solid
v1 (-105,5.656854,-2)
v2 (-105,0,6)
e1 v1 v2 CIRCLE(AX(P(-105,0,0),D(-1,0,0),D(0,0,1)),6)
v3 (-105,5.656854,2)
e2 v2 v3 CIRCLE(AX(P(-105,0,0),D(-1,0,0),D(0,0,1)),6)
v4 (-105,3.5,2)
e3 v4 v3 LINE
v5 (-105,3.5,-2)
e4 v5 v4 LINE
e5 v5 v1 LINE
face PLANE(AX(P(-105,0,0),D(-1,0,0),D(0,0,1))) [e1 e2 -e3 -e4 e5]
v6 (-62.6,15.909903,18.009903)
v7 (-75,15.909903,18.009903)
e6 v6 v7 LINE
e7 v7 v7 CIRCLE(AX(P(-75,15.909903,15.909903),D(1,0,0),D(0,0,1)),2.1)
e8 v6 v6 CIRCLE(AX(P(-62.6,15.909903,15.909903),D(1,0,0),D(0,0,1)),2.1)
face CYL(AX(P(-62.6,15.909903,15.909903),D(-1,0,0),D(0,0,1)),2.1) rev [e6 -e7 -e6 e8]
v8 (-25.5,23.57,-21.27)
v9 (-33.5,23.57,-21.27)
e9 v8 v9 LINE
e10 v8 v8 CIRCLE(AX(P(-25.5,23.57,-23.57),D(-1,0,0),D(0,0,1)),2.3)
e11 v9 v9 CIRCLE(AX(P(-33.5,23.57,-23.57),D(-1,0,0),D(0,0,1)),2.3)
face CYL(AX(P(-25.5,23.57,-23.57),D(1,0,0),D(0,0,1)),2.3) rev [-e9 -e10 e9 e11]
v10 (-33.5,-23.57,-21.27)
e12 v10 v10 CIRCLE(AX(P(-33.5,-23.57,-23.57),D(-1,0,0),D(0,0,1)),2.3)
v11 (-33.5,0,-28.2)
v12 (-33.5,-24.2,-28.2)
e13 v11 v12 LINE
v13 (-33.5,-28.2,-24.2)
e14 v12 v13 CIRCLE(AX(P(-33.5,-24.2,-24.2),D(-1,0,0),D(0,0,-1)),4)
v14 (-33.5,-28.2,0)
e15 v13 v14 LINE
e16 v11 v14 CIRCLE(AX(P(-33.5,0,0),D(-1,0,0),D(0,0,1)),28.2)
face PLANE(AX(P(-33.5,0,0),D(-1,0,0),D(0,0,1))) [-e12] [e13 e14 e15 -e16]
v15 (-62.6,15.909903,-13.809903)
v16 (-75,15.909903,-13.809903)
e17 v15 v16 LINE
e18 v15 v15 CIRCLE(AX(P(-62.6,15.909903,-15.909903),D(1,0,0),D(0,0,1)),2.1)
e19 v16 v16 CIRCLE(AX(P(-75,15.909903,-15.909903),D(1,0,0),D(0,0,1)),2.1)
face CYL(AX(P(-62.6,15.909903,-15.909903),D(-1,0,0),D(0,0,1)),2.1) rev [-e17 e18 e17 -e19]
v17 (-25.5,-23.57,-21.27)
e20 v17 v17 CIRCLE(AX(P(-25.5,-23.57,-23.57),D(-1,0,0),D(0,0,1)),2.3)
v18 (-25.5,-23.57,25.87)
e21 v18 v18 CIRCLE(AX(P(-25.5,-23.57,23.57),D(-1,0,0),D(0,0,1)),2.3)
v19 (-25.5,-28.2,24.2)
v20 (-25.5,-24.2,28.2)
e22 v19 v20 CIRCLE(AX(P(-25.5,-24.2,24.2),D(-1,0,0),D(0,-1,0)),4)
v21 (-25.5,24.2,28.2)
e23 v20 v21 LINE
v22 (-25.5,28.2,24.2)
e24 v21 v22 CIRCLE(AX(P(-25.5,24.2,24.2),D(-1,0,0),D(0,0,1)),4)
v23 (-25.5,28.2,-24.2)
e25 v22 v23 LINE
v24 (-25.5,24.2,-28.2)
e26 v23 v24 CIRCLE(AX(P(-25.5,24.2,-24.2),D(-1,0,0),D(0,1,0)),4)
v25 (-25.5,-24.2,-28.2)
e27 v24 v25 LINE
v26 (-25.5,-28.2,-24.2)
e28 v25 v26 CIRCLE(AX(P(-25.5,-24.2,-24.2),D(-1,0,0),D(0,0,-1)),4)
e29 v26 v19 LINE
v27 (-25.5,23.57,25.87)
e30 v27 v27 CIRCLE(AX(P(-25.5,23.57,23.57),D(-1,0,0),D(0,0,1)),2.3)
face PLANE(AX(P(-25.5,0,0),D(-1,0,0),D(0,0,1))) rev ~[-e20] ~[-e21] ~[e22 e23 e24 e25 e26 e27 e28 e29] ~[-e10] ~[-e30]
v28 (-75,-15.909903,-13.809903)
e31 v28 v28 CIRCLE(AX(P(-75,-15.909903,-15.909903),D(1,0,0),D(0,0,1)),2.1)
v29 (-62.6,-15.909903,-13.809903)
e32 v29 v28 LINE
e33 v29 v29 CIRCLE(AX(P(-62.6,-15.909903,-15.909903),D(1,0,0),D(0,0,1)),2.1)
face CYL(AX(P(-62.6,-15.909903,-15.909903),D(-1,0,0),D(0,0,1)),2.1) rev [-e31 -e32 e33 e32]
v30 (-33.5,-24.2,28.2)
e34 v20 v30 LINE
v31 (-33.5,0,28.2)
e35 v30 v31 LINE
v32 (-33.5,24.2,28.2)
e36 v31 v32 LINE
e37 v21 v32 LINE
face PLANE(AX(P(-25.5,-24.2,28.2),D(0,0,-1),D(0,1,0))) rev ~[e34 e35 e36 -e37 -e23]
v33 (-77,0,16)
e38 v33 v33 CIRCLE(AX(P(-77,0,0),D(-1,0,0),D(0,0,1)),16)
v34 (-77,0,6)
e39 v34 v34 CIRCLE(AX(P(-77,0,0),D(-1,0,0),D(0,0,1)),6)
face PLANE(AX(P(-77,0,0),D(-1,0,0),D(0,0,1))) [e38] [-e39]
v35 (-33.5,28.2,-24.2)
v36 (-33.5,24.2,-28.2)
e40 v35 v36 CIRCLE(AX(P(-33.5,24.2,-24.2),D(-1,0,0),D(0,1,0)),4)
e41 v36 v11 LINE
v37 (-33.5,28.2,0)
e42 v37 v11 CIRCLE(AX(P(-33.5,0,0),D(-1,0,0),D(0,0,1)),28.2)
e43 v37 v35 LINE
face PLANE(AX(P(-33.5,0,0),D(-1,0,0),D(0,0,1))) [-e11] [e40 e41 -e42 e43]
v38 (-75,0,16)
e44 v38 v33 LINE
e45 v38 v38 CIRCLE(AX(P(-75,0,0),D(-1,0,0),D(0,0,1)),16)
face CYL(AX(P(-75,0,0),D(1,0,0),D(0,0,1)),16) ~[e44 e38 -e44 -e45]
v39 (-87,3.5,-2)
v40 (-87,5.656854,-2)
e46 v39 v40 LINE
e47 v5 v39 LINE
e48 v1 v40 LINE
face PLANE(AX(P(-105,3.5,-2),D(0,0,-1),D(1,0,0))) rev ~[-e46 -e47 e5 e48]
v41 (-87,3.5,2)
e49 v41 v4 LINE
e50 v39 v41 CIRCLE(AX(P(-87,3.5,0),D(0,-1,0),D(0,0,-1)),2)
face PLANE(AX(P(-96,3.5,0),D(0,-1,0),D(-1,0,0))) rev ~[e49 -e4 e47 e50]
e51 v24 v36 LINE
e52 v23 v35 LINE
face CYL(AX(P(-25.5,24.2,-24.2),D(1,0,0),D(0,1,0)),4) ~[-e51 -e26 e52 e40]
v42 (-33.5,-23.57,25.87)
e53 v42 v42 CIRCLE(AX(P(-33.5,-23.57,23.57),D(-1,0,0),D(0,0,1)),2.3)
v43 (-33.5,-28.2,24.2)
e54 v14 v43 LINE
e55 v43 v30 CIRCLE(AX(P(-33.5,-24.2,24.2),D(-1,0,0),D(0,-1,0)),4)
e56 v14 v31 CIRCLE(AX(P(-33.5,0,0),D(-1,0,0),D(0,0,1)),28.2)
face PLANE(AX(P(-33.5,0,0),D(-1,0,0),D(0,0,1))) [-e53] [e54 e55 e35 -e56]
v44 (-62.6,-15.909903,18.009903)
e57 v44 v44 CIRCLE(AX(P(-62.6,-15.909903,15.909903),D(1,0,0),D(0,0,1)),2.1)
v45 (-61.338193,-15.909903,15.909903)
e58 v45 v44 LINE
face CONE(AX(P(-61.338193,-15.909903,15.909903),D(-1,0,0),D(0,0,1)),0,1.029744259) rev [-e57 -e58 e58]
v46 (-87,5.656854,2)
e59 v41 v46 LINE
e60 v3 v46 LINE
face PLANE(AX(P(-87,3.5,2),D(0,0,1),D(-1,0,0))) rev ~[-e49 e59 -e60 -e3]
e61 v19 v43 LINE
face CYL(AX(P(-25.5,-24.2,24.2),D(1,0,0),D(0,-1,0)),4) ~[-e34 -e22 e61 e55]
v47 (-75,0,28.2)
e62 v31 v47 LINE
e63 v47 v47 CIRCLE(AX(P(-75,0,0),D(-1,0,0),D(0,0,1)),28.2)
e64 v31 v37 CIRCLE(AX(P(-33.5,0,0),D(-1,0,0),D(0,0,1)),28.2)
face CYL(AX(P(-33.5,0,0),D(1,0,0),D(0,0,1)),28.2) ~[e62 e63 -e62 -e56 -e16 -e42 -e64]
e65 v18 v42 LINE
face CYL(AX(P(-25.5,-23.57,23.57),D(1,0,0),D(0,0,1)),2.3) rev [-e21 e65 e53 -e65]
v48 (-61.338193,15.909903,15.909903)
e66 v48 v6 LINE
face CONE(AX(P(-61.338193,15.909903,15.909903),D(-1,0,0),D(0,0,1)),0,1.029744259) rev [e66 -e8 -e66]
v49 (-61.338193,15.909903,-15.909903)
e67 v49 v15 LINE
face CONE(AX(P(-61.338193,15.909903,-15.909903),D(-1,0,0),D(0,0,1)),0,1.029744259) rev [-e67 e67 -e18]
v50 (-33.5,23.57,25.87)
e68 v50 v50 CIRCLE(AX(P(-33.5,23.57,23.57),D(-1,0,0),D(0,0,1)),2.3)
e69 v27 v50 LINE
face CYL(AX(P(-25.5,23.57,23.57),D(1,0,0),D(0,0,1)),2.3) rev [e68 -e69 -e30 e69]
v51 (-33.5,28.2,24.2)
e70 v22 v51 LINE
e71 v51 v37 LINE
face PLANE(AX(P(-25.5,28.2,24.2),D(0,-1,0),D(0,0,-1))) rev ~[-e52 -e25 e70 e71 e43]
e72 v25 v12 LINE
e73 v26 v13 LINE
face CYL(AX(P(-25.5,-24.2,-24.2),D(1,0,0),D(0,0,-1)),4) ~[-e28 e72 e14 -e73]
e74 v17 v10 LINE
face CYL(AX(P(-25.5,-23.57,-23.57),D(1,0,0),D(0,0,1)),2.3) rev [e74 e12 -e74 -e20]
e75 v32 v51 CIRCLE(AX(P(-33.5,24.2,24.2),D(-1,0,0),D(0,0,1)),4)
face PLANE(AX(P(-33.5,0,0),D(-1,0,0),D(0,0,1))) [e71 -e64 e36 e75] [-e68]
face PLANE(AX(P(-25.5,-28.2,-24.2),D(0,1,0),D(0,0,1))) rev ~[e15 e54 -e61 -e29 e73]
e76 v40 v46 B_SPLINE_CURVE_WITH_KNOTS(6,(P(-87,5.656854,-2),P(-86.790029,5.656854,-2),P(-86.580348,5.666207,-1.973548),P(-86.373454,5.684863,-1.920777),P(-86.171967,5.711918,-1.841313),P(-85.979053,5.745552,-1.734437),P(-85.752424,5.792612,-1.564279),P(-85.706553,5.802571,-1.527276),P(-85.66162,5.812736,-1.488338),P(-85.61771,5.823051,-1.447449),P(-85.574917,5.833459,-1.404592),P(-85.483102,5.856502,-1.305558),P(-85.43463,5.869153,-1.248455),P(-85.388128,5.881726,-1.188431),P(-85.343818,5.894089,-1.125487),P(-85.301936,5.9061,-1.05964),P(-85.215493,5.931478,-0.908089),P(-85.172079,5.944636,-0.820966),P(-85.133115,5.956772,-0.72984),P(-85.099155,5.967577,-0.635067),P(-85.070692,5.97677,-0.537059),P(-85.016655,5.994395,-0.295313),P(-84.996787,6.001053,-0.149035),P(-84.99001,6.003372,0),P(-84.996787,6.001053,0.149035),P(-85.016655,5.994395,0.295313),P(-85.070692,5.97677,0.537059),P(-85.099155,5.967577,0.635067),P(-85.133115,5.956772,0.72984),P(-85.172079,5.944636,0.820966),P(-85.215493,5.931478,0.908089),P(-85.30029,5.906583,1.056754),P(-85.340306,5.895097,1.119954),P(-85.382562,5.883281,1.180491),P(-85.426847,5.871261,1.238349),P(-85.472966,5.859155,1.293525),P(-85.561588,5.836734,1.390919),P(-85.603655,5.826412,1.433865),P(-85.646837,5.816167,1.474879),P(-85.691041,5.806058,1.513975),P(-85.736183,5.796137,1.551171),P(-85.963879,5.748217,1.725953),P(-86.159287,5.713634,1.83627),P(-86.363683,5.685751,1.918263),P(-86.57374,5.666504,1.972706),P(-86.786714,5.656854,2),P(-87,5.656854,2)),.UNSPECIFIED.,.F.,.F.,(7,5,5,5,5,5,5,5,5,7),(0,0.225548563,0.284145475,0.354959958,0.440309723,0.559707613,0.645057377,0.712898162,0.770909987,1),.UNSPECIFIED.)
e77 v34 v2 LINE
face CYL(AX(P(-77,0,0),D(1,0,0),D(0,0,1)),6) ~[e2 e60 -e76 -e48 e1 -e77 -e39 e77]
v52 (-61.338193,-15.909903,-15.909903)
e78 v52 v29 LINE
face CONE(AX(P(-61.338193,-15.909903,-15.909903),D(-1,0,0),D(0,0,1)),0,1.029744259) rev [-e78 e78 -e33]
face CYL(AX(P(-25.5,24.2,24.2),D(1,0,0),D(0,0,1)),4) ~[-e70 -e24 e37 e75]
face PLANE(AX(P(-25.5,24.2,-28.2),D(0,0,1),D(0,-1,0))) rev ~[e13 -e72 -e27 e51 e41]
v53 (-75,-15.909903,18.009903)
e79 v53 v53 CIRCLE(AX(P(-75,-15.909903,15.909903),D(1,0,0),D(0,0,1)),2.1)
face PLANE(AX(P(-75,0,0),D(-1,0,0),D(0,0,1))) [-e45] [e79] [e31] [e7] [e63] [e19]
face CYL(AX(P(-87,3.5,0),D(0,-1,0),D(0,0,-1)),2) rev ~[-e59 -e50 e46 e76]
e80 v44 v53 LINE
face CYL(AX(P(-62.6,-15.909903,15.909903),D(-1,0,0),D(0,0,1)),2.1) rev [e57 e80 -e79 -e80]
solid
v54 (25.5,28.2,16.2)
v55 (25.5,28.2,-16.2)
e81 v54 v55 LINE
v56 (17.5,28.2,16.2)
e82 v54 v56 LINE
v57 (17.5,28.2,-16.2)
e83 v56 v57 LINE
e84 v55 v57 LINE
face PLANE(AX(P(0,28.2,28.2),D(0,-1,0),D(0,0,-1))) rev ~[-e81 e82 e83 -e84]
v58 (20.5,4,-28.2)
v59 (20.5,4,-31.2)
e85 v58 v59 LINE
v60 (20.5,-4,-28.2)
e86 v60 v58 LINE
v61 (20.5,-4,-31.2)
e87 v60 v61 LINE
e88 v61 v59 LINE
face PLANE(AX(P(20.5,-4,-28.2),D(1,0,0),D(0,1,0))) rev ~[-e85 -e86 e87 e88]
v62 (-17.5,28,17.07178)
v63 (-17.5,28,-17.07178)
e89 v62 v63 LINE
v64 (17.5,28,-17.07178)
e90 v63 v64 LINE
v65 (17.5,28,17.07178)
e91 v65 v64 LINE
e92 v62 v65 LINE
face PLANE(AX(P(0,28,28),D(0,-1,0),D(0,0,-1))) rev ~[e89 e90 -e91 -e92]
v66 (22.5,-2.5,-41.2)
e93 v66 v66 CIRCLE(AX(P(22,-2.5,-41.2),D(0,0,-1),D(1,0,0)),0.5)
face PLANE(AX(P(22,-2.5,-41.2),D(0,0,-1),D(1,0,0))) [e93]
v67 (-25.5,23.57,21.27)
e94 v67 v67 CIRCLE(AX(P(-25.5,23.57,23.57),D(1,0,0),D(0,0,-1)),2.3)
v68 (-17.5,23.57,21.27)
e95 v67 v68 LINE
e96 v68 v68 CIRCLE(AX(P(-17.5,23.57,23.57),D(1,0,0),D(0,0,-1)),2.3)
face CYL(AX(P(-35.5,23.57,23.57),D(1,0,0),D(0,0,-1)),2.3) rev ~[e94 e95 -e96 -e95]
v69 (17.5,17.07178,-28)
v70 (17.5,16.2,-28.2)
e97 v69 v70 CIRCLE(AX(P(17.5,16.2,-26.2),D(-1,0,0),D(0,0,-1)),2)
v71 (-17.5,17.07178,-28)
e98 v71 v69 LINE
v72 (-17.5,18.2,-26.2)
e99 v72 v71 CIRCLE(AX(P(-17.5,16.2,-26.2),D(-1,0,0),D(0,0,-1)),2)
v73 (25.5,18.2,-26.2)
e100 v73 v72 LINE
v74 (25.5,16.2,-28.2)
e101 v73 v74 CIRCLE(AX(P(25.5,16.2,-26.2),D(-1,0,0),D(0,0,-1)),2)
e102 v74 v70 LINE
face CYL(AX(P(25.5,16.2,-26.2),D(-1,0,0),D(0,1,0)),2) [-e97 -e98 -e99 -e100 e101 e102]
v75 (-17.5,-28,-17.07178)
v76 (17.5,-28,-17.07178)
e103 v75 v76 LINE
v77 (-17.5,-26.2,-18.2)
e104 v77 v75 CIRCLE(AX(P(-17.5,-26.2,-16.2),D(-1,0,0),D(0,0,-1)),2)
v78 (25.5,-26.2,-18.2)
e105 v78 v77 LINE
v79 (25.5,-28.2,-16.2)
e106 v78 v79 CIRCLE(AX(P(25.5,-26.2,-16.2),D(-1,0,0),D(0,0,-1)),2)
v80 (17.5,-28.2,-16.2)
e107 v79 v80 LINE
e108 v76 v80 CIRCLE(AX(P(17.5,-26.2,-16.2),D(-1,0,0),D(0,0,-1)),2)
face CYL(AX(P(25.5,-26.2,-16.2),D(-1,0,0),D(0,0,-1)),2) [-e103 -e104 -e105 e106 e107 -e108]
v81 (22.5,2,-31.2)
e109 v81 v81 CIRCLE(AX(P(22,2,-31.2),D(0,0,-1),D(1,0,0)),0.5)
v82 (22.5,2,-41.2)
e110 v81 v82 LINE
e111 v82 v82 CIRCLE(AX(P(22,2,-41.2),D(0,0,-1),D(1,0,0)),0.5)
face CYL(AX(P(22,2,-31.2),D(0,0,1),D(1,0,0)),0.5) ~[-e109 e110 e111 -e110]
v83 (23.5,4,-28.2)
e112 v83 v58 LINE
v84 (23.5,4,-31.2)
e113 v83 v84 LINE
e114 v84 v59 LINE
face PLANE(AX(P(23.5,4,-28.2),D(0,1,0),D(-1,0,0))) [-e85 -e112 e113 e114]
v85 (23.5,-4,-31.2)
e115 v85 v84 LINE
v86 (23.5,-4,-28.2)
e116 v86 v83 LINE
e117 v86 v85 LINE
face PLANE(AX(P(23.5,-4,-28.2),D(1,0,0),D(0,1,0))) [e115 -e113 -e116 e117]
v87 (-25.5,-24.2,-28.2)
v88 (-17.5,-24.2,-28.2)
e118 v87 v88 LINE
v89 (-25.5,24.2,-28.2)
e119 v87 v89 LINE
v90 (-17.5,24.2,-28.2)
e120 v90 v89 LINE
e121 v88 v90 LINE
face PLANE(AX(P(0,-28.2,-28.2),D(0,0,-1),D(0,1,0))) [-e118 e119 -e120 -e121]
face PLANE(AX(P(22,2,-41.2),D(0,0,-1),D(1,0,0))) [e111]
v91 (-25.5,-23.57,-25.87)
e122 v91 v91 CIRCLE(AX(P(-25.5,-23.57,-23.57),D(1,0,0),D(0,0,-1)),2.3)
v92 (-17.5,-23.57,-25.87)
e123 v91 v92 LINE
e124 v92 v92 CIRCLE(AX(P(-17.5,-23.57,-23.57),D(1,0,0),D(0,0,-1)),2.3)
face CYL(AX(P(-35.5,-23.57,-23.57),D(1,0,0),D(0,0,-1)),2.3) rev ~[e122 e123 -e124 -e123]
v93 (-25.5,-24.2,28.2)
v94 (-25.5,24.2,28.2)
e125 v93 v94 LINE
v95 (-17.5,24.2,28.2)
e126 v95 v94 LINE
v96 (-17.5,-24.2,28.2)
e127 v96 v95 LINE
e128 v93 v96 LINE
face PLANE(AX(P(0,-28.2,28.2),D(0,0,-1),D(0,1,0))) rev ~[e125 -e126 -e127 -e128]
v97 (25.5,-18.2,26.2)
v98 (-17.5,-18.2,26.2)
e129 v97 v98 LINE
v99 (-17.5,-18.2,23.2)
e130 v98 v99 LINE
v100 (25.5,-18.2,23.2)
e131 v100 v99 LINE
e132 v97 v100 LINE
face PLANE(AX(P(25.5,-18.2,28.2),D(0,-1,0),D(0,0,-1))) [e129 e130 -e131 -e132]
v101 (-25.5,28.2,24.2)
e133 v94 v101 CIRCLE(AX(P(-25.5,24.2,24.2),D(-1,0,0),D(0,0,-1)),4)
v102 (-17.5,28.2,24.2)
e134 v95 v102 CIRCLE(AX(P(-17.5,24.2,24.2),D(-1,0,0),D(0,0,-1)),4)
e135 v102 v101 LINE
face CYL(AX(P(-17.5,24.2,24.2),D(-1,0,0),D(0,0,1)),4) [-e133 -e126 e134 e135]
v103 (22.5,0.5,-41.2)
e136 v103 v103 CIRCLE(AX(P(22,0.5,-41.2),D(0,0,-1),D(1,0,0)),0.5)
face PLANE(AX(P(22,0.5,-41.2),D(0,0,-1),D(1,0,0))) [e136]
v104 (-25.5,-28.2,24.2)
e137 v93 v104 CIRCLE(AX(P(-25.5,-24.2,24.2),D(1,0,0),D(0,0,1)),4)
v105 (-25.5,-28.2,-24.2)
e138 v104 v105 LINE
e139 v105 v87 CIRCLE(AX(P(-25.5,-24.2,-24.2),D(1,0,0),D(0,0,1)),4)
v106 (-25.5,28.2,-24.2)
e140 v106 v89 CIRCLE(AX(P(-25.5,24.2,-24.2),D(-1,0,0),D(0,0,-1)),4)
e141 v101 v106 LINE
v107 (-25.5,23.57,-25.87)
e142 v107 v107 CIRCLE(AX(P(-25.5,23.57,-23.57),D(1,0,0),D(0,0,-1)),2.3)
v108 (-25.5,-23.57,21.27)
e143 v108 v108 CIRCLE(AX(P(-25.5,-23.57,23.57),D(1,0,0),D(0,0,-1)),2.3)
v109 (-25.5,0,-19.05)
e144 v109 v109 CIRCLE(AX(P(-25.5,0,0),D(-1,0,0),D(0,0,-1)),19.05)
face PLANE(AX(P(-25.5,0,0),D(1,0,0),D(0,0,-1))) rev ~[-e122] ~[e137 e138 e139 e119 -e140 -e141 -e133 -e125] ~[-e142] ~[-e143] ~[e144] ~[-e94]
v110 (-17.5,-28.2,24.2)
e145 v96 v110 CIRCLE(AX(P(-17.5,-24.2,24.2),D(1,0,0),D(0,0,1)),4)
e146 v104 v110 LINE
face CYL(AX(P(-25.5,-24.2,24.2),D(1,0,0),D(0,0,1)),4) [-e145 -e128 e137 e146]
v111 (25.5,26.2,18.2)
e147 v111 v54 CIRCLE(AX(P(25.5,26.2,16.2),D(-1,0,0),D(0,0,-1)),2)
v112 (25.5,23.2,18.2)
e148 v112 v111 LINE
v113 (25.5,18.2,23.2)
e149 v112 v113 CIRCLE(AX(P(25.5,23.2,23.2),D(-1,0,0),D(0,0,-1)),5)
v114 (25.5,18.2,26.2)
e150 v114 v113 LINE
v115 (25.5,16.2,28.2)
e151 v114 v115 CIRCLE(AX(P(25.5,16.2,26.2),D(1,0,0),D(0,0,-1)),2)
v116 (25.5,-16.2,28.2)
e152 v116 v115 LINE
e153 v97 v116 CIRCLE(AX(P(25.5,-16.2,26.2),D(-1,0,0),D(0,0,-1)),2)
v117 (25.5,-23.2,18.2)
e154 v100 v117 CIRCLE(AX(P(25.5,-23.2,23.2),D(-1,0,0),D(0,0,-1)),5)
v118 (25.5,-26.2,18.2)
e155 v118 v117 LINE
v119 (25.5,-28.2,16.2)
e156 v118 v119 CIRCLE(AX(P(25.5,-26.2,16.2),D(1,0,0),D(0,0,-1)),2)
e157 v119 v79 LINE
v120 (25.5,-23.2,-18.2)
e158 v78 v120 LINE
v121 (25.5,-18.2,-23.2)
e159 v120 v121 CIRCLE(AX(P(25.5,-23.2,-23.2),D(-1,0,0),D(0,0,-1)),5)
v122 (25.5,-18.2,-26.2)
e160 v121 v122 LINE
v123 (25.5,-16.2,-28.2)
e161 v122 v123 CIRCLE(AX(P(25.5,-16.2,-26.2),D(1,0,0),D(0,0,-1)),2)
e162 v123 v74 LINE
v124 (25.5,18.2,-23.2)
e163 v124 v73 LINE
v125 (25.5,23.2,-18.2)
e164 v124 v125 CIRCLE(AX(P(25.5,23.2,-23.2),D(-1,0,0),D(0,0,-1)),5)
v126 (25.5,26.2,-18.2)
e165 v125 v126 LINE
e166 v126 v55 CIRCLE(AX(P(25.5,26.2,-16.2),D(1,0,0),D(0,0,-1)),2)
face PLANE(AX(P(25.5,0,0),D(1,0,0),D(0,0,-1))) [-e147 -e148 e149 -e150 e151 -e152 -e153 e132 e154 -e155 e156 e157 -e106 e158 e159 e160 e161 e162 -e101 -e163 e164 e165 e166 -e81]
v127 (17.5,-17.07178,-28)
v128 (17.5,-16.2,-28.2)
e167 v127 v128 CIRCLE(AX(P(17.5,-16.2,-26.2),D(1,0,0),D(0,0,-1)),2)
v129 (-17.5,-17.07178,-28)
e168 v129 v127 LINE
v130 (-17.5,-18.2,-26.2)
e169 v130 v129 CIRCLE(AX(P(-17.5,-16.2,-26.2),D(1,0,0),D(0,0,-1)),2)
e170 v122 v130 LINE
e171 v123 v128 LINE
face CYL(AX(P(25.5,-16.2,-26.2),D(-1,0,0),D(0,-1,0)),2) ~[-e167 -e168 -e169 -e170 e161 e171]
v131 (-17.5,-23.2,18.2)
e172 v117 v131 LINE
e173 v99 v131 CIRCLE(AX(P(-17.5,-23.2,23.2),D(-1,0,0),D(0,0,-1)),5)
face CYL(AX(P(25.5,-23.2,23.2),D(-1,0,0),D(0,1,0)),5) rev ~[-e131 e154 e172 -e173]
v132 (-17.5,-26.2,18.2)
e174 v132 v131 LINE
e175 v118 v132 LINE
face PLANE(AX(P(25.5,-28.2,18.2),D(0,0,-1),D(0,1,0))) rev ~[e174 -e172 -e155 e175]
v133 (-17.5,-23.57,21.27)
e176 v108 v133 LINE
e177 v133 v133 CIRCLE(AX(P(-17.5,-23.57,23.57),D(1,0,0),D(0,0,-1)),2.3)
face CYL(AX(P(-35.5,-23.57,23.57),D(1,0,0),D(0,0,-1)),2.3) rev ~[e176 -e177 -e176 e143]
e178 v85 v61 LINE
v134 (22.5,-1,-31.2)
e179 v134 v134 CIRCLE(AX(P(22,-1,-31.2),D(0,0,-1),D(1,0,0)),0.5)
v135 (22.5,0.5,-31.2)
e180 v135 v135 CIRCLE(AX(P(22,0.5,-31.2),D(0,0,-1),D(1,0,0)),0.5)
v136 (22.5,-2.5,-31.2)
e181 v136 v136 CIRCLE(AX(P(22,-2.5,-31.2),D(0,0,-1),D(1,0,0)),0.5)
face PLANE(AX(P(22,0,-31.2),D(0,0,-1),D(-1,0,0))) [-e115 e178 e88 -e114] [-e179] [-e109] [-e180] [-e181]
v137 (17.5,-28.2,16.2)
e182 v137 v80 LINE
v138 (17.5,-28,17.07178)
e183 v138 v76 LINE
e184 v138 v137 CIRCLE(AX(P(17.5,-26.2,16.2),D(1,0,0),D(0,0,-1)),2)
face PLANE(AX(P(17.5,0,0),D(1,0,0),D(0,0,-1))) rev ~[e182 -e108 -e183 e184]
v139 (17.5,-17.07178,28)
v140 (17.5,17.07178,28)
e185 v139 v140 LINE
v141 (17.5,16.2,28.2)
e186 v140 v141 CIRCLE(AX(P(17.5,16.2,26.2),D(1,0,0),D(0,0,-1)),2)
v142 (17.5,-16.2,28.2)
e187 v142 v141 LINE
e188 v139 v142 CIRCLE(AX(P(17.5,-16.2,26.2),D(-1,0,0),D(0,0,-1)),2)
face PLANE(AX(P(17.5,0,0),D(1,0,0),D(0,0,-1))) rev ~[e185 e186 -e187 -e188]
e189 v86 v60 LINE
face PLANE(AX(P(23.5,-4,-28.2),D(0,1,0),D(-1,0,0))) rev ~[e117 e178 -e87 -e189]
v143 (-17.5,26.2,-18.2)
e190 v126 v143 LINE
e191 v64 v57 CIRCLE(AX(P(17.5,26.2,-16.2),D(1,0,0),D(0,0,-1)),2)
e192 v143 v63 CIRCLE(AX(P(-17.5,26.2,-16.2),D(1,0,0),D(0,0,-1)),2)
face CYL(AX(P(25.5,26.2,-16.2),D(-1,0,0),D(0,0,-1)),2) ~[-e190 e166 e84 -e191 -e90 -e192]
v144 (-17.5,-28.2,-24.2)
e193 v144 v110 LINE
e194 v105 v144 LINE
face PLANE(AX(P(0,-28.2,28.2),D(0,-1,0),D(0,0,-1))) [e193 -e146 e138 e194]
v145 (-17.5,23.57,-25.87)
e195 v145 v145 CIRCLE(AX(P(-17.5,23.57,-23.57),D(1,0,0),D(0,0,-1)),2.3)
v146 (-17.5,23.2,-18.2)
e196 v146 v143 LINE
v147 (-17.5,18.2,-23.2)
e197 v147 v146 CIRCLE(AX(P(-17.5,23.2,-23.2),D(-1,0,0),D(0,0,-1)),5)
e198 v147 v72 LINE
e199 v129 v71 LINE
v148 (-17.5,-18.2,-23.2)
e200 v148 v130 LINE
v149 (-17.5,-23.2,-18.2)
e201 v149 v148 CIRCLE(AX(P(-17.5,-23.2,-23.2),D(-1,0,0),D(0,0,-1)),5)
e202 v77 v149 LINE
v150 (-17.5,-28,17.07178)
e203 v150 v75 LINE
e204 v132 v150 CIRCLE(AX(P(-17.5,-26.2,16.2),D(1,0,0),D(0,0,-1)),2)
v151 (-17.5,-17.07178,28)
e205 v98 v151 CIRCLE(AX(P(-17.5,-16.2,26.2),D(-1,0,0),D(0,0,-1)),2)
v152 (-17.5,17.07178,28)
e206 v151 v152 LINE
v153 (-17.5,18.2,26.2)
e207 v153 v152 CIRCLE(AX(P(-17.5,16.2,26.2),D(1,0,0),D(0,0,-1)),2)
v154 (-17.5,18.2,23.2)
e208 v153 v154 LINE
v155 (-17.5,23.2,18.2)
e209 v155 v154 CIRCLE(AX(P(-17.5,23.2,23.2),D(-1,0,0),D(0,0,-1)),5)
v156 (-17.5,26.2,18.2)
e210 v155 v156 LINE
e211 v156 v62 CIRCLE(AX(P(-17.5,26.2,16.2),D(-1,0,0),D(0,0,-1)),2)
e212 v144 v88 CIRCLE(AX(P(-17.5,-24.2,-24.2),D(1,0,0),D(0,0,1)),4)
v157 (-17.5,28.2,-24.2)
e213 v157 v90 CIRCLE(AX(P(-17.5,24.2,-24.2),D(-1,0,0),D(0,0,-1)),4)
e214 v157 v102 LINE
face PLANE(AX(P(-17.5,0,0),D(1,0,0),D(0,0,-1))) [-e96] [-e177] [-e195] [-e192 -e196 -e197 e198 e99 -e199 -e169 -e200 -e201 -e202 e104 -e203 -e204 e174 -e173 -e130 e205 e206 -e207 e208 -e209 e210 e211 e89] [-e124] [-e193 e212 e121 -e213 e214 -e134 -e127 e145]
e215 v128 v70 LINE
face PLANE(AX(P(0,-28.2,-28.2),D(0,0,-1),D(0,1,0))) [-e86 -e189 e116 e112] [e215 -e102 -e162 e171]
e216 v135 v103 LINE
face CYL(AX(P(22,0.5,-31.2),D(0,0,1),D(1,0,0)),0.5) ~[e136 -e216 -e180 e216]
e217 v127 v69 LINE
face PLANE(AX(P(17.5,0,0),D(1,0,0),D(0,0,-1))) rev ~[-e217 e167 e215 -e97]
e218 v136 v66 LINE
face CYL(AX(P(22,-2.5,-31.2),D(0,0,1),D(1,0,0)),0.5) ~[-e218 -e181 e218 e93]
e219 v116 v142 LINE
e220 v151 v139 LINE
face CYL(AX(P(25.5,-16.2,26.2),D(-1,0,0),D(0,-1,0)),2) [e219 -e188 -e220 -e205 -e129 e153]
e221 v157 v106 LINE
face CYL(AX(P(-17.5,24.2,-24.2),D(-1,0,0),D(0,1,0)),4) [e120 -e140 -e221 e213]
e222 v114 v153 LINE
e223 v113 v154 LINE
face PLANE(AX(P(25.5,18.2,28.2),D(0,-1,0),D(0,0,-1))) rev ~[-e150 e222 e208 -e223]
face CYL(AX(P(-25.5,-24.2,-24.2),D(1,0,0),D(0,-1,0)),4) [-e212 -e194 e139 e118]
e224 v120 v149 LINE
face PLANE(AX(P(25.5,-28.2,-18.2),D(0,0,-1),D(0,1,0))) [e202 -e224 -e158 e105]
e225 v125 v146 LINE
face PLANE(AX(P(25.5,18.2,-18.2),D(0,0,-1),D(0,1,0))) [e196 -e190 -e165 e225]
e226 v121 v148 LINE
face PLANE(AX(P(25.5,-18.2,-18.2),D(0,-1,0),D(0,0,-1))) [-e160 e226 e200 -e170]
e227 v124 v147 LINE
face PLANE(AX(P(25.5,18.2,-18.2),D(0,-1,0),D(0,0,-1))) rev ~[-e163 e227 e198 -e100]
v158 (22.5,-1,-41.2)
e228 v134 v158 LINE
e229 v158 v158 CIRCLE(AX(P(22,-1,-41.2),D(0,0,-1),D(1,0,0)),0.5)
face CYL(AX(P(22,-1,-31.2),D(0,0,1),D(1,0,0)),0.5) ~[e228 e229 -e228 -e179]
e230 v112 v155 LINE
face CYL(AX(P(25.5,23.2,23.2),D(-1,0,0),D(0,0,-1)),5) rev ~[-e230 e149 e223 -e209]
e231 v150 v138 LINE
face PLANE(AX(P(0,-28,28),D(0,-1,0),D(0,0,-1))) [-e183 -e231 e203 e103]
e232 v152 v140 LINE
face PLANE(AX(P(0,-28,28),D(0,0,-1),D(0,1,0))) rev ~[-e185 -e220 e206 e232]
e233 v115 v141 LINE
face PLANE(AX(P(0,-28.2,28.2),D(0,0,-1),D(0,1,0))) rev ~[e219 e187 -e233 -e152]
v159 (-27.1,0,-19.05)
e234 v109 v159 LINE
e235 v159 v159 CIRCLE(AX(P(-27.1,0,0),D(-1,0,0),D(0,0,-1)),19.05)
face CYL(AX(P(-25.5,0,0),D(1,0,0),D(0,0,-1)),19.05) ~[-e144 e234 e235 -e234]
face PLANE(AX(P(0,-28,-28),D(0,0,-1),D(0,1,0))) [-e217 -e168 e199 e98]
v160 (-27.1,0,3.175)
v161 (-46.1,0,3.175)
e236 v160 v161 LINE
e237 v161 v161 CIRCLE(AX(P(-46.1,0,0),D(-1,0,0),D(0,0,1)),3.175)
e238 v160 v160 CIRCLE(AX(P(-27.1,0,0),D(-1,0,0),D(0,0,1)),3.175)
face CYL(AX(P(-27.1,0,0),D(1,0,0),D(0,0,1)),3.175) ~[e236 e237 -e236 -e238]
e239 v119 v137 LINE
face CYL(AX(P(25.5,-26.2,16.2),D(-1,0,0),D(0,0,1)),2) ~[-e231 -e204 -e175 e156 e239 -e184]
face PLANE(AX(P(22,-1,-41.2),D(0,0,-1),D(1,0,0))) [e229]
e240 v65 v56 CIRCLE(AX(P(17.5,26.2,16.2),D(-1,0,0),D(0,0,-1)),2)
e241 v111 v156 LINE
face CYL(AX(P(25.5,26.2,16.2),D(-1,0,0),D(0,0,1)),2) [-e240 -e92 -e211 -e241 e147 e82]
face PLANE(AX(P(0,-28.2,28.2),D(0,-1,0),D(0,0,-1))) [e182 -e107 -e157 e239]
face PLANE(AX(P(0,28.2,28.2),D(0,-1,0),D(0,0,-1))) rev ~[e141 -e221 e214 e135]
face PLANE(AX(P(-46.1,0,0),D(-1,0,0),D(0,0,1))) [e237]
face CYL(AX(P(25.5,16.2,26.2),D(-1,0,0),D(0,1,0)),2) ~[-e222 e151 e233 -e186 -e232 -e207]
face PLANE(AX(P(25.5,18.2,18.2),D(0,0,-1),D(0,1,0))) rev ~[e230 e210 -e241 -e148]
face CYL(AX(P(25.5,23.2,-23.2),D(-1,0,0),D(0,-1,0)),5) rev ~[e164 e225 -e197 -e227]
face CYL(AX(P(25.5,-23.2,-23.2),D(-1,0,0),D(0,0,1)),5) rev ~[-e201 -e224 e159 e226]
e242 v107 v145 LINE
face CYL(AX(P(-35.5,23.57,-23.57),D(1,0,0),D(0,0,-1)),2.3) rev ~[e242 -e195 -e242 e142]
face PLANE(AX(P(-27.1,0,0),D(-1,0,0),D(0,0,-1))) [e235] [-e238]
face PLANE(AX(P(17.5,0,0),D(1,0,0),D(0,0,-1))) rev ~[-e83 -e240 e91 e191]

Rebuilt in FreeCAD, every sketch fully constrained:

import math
import FreeCAD as App
import Part
import Sketcher

V = App.Vector
Q = App.Units.Quantity


def edges_at(feature, points):
    """Names of the edges that pass closest to the given points."""
    edges = feature.Shape.Edges
    near = lambda p: min(range(len(edges)), key=lambda i: edges[i].distToShape(Part.Vertex(*p))[0])
    return sorted({f"Edge{near(p) + 1}" for p in points})

doc = App.newDocument("Part")
body = doc.addObject("PartDesign::Body", "Body")

# Sketch on YZ plane
sketch1 = body.newObject("Sketcher::SketchObject", "Sketch")
sketch1.AttachmentSupport = (doc.getObject("YZ_Plane"), [""])
sketch1.MapMode = "FlatFace"
sketch1.addGeometry([
    Part.LineSegment(V(28.2, 28.2, 0), V(-28.2, 28.2, 0)),
    Part.LineSegment(V(-28.2, 28.2, 0), V(-28.2, -28.2, 0)),
    Part.LineSegment(V(-28.2, -28.2, 0), V(28.2, -28.2, 0)),
    Part.LineSegment(V(28.2, -28.2, 0), V(28.2, 28.2, 0)),
], False)
sketch1.addConstraint([
    Sketcher.Constraint("Coincident", 0, 2, 1, 1),
    Sketcher.Constraint("Coincident", 1, 2, 2, 1),
    Sketcher.Constraint("Coincident", 2, 2, 3, 1),
    Sketcher.Constraint("Coincident", 3, 2, 0, 1),
    Sketcher.Constraint("Horizontal", 0),
    Sketcher.Constraint("Vertical", 1),
    Sketcher.Constraint("Horizontal", 2),
    Sketcher.Constraint("Vertical", 3),
    Sketcher.Constraint("Symmetric", 0, 2, 2, 2, -1, 1),
    Sketcher.Constraint("Equal", 2, 1),
    Sketcher.Constraint("DistanceX", 0, 2, 0, 1, 56.4),
])
pad1 = body.newObject("PartDesign::Pad", "Pad")
pad1.Profile = sketch1
pad1.Length = 51
pad1.Midplane = True

# Sketch on YZ plane
sketch2 = body.newObject("Sketcher::SketchObject", "Sketch001")
sketch2.AttachmentSupport = (doc.getObject("YZ_Plane"), [""])
sketch2.MapMode = "FlatFace"
sketch2.addGeometry([
    Part.LineSegment(V(28.2, 28.2, 0), V(-28.2, 28.2, 0)),  # 0
    Part.LineSegment(V(-28.2, 28.2, 0), V(-28.2, -28.2, 0)),  # 1
    Part.LineSegment(V(-28.2, -28.2, 0), V(28.2, -28.2, 0)),  # 2
    Part.LineSegment(V(28.2, -28.2, 0), V(28.2, 28.2, 0)),  # 3
    Part.LineSegment(V(-28, -28, 0), V(-28, 28, 0)),  # 4
    Part.LineSegment(V(-28, 28, 0), V(28, 28, 0)),  # 5
    Part.LineSegment(V(28, 28, 0), V(28, -28, 0)),  # 6
    Part.LineSegment(V(28, -28, 0), V(-28, -28, 0)),  # 7
], False)
sketch2.addConstraint([
    Sketcher.Constraint("Coincident", 0, 2, 1, 1),
    Sketcher.Constraint("Coincident", 1, 2, 2, 1),
    Sketcher.Constraint("Coincident", 2, 2, 3, 1),
    Sketcher.Constraint("Coincident", 3, 2, 0, 1),
    Sketcher.Constraint("Coincident", 4, 2, 5, 1),
    Sketcher.Constraint("Coincident", 5, 2, 6, 1),
    Sketcher.Constraint("Coincident", 6, 2, 7, 1),
    Sketcher.Constraint("Coincident", 7, 2, 4, 1),
    Sketcher.Constraint("Horizontal", 0),
    Sketcher.Constraint("Vertical", 1),
    Sketcher.Constraint("Horizontal", 2),
    Sketcher.Constraint("Vertical", 3),
    Sketcher.Constraint("Vertical", 4),
    Sketcher.Constraint("Horizontal", 5),
    Sketcher.Constraint("Vertical", 6),
    Sketcher.Constraint("Horizontal", 7),
    Sketcher.Constraint("Symmetric", 0, 2, 2, 2, -1, 1),
    Sketcher.Constraint("Symmetric", 4, 2, 6, 2, -1, 1),
    Sketcher.Constraint("Equal", 2, 1),
    Sketcher.Constraint("Equal", 7, 4),
    Sketcher.Constraint("DistanceX", 5, 1, 5, 2, 56.0),
    Sketcher.Constraint("DistanceX", 0, 2, 0, 1, 56.4),
])
pocket1 = body.newObject("PartDesign::Pocket", "Pocket")
pocket1.Profile = sketch2
pocket1.Length = 35
pocket1.Midplane = True

# Sketch on YZ plane
sketch3 = body.newObject("Sketcher::SketchObject", "Sketch002")
sketch3.AttachmentSupport = (doc.getObject("YZ_Plane"), [""])
sketch3.MapMode = "FlatFace"
sketch3.AttachmentOffset = App.Placement(V(0, 0, -25.5), App.Rotation())
sketch3.addGeometry(Part.Circle(V(0, 0, 0), V(0, 0, 1), 19.05), False)
sketch3.addConstraint([
    Sketcher.Constraint("Coincident", 0, 3, -1, 1),
    Sketcher.Constraint("Diameter", 0, 38.1),
])
pad2 = body.newObject("PartDesign::Pad", "Pad001")
pad2.Profile = sketch3
pad2.Length = 1.6
pad2.Reversed = True

# Sketch on YZ plane
sketch4 = body.newObject("Sketcher::SketchObject", "Sketch003")
sketch4.AttachmentSupport = (doc.getObject("YZ_Plane"), [""])
sketch4.MapMode = "FlatFace"
sketch4.AttachmentOffset = App.Placement(V(0, 0, -27.1), App.Rotation())
sketch4.addGeometry(Part.Circle(V(0, 0, 0), V(0, 0, 1), 3.175), False)
sketch4.addConstraint([
    Sketcher.Constraint("Coincident", 0, 3, -1, 1),
    Sketcher.Constraint("Diameter", 0, 6.35),
])
pad3 = body.newObject("PartDesign::Pad", "Pad002")
pad3.Profile = sketch4
pad3.Length = 19
pad3.Reversed = True

# Sketch on XY plane
sketch5 = body.newObject("Sketcher::SketchObject", "Sketch004")
sketch5.AttachmentSupport = (doc.getObject("XY_Plane"), [""])
sketch5.MapMode = "FlatFace"
sketch5.AttachmentOffset = App.Placement(V(0, 0, -28.2), App.Rotation())
sketch5.addGeometry([
    Part.LineSegment(V(23.5, 4, 0), V(23.5, -4, 0)),
    Part.LineSegment(V(23.5, -4, 0), V(20.5, -4, 0)),
    Part.LineSegment(V(20.5, -4, 0), V(20.5, 4, 0)),
    Part.LineSegment(V(20.5, 4, 0), V(23.5, 4, 0)),
], False)
sketch5.addConstraint([
    Sketcher.Constraint("Coincident", 0, 2, 1, 1),
    Sketcher.Constraint("Coincident", 1, 2, 2, 1),
    Sketcher.Constraint("Coincident", 2, 2, 3, 1),
    Sketcher.Constraint("Coincident", 3, 2, 0, 1),
    Sketcher.Constraint("Vertical", 0),
    Sketcher.Constraint("Horizontal", 1),
    Sketcher.Constraint("Vertical", 2),
    Sketcher.Constraint("Horizontal", 3),
    Sketcher.Constraint("DistanceX", 1, 2, 1, 1, 3.0),
    Sketcher.Constraint("DistanceY", 0, 2, 0, 1, 8.0),
    Sketcher.Constraint("DistanceY", 0, 2, -1, 1, 4.0),
    Sketcher.Constraint("DistanceX", -1, 1, 0, 2, 23.5),
])
pad4 = body.newObject("PartDesign::Pad", "Pad003")
pad4.Profile = sketch5
pad4.Length = 3
pad4.Reversed = True

# Sketch on XY plane
sketch6 = body.newObject("Sketcher::SketchObject", "Sketch005")
sketch6.AttachmentSupport = (doc.getObject("XY_Plane"), [""])
sketch6.MapMode = "FlatFace"
sketch6.AttachmentOffset = App.Placement(V(0, 0, -31.2), App.Rotation())
sketch6.addGeometry([
    Part.Circle(V(22, -2.5, 0), V(0, 0, 1), 0.5),
    Part.Circle(V(22, -1, 0), V(0, 0, 1), 0.5),
    Part.Circle(V(22, 0.5, 0), V(0, 0, 1), 0.5),
    Part.Circle(V(22, 2, 0), V(0, 0, 1), 0.5),
], False)
sketch6.addConstraint([
    Sketcher.Constraint("Equal", 0, 1),
    Sketcher.Constraint("Equal", 1, 2),
    Sketcher.Constraint("Equal", 2, 3),
    Sketcher.Constraint("Vertical", 0, 3, 1, 3),
    Sketcher.Constraint("Vertical", 1, 3, 2, 3),
    Sketcher.Constraint("Vertical", 2, 3, 3, 3),
    Sketcher.Constraint("Diameter", 0, 1.0),
    Sketcher.Constraint("DistanceX", -1, 1, 0, 3, 22.0),
    Sketcher.Constraint("DistanceY", 1, 3, -1, 1, 1.0),
    Sketcher.Constraint("DistanceY", -1, 1, 3, 3, 2.0),
    Sketcher.Constraint("DistanceY", 0, 3, 2, 3, 3.0),
    Sketcher.Constraint("DistanceY", 0, 3, -1, 1, 2.5),
])
pad5 = body.newObject("PartDesign::Pad", "Pad004")
pad5.Profile = sketch6
pad5.Length = 10
pad5.Reversed = True

# Sketch on YZ plane
sketch7 = body.newObject("Sketcher::SketchObject", "Sketch006")
sketch7.AttachmentSupport = (doc.getObject("YZ_Plane"), [""])
sketch7.MapMode = "FlatFace"
sketch7.AttachmentOffset = App.Placement(V(0, 0, 25.5), App.Rotation())
sketch7.addGeometry([
    Part.LineSegment(V(-18.2, -18.2, 0), V(-28.2, -18.2, 0)),  # 0
    Part.LineSegment(V(-28.2, -18.2, 0), V(-28.2, -28.2, 0)),  # 1
    Part.LineSegment(V(-28.2, -28.2, 0), V(-18.2, -28.2, 0)),  # 2
    Part.LineSegment(V(-18.2, -28.2, 0), V(-18.2, -18.2, 0)),  # 3
    Part.LineSegment(V(-18.2, 28.2, 0), V(-28.2, 28.2, 0)),  # 4
    Part.LineSegment(V(-28.2, 28.2, 0), V(-28.2, 18.2, 0)),  # 5
    Part.LineSegment(V(-28.2, 18.2, 0), V(-18.2, 18.2, 0)),  # 6
    Part.LineSegment(V(-18.2, 18.2, 0), V(-18.2, 28.2, 0)),  # 7
    Part.LineSegment(V(28.2, 28.2, 0), V(18.2, 28.2, 0)),  # 8
    Part.LineSegment(V(18.2, 28.2, 0), V(18.2, 18.2, 0)),  # 9
    Part.LineSegment(V(18.2, 18.2, 0), V(28.2, 18.2, 0)),  # 10
    Part.LineSegment(V(28.2, 18.2, 0), V(28.2, 28.2, 0)),  # 11
    Part.LineSegment(V(28.2, -18.2, 0), V(18.2, -18.2, 0)),  # 12
    Part.LineSegment(V(18.2, -18.2, 0), V(18.2, -28.2, 0)),  # 13
    Part.LineSegment(V(18.2, -28.2, 0), V(28.2, -28.2, 0)),  # 14
    Part.LineSegment(V(28.2, -28.2, 0), V(28.2, -18.2, 0)),  # 15
], False)
sketch7.addConstraint([
    Sketcher.Constraint("Coincident", 0, 2, 1, 1),
    Sketcher.Constraint("Coincident", 1, 2, 2, 1),
    Sketcher.Constraint("Coincident", 2, 2, 3, 1),
    Sketcher.Constraint("Coincident", 3, 2, 0, 1),
    Sketcher.Constraint("Coincident", 4, 2, 5, 1),
    Sketcher.Constraint("Coincident", 5, 2, 6, 1),
    Sketcher.Constraint("Coincident", 6, 2, 7, 1),
    Sketcher.Constraint("Coincident", 7, 2, 4, 1),
    Sketcher.Constraint("Coincident", 8, 2, 9, 1),
    Sketcher.Constraint("Coincident", 9, 2, 10, 1),
    Sketcher.Constraint("Coincident", 10, 2, 11, 1),
    Sketcher.Constraint("Coincident", 11, 2, 8, 1),
    Sketcher.Constraint("Coincident", 12, 2, 13, 1),
    Sketcher.Constraint("Coincident", 13, 2, 14, 1),
    Sketcher.Constraint("Coincident", 14, 2, 15, 1),
    Sketcher.Constraint("Coincident", 15, 2, 12, 1),
    Sketcher.Constraint("Horizontal", 0),
    Sketcher.Constraint("Vertical", 1),
    Sketcher.Constraint("Horizontal", 2),
    Sketcher.Constraint("Vertical", 3),
    Sketcher.Constraint("Horizontal", 4),
    Sketcher.Constraint("Vertical", 5),
    Sketcher.Constraint("Horizontal", 6),
    Sketcher.Constraint("Vertical", 7),
    Sketcher.Constraint("Horizontal", 8),
    Sketcher.Constraint("Vertical", 9),
    Sketcher.Constraint("Horizontal", 10),
    Sketcher.Constraint("Vertical", 11),
    Sketcher.Constraint("Horizontal", 12),
    Sketcher.Constraint("Vertical", 13),
    Sketcher.Constraint("Horizontal", 14),
    Sketcher.Constraint("Vertical", 15),
    Sketcher.Constraint("Symmetric", 2, 2, 8, 2, -1, 1),
    Sketcher.Constraint("Symmetric", 0, 2, 10, 2, -1, 1),
    Sketcher.Constraint("Symmetric", 6, 2, 12, 2, -1, 1),
    Sketcher.Constraint("Symmetric", 4, 2, 14, 2, -1, 1),
    Sketcher.Constraint("Symmetric", 7, 2, 8, 2, -2),
    Sketcher.Constraint("Symmetric", 5, 2, 10, 2, -2),
    Sketcher.Constraint("Equal", 14, 1),
    Sketcher.Constraint("DistanceX", 0, 2, 0, 1, 10.0),
    Sketcher.Constraint("DistanceX", 0, 2, -1, 1, 28.2),
    Sketcher.Constraint("DistanceY", 0, 2, -1, 1, 18.2),
])
pocket2 = body.newObject("PartDesign::Pocket", "Pocket001")
pocket2.Profile = sketch7
pocket2.Length = 43
doc.recompute()

fillet = body.newObject("PartDesign::Fillet", "Fillet")
fillet.Base = (pocket2, edges_at(pocket2, [
    (4, -18.2, 18.2),
    (4, 18.2, 18.2),
    (4, 18.2, -18.2),
    (4, -18.2, -18.2),
]))
fillet.Radius = 5
doc.recompute()

fillet2 = body.newObject("PartDesign::Fillet", "Fillet001")
fillet2.Base = (fillet, edges_at(fillet, [
    (21.5, 28.2, -18.2),
    (21.5, 28.2, 18.2),
    (21.5, 18.2, 28.2),
    (21.5, -18.2, 28.2),
    (21.5, -28.2, 18.2),
    (21.5, -28.2, -18.2),
    (21.5, -18.2, -28.2),
    (21.5, 18.2, -28.2),
]))
fillet2.Radius = 2

# Sketch on YZ plane
sketch8 = body.newObject("Sketcher::SketchObject", "Sketch007")
sketch8.AttachmentSupport = (doc.getObject("YZ_Plane"), [""])
sketch8.MapMode = "FlatFace"
sketch8.AttachmentOffset = App.Placement(V(0, 0, -25.5), App.Rotation())
sketch8.addGeometry([
    Part.Circle(V(23.57, -23.57, 0), V(0, 0, 1), 2.3),
    Part.Circle(V(23.57, 23.57, 0), V(0, 0, 1), 2.3),
    Part.Circle(V(-23.57, 23.57, 0), V(0, 0, 1), 2.3),
    Part.Circle(V(-23.57, -23.57, 0), V(0, 0, 1), 2.3),
], False)
sketch8.addConstraint([
    Sketcher.Constraint("Equal", 0, 1),
    Sketcher.Constraint("Equal", 1, 2),
    Sketcher.Constraint("Equal", 2, 3),
    Sketcher.Constraint("Symmetric", 0, 3, 2, 3, -1, 1),
    Sketcher.Constraint("Symmetric", 1, 3, 3, 3, -1, 1),
    Sketcher.Constraint("Symmetric", 1, 3, 2, 3, -2),
    Sketcher.Constraint("Diameter", 0, 4.6),
    Sketcher.Constraint("DistanceX", -1, 1, 0, 3, 23.57),
    Sketcher.Constraint("DistanceY", 0, 3, -1, 1, 23.57),
])
doc.recompute()
hole = body.newObject("PartDesign::Hole", "Hole")
hole.Profile = sketch8
hole.ThreadType = "None"
hole.Diameter = 4.6
hole.DepthType = "Dimension"
hole.Depth = 10
hole.DrillPoint = "Angled"
hole.DrillPointAngle = 118
hole.Reversed = True
doc.recompute()

fillet3 = body.newObject("PartDesign::Fillet", "Fillet002")
fillet3.Base = (hole, edges_at(hole, [
    (-21.5, 28.2, 28.2),
    (-21.5, 28.2, -28.2),
    (-21.5, -28.2, -28.2),
    (-21.5, -28.2, 28.2),
]))
fillet3.Radius = 4
body2 = doc.addObject("PartDesign::Body", "Body001")

# Sketch on YZ plane
sketch9 = body2.newObject("Sketcher::SketchObject", "Sketch008")
sketch9.AttachmentSupport = (doc.getObject("YZ_Plane001"), [""])
sketch9.MapMode = "FlatFace"
sketch9.AttachmentOffset = App.Placement(V(0, 0, -25.5), App.Rotation())
sketch9.addGeometry([
    Part.LineSegment(V(-28.2, -24.2, 0), V(-28.2, 24.2, 0)),  # 0
    Part.ArcOfCircle(Part.Circle(V(-24.2, 24.2, 0), V(0, 0, 1), 4), math.radians(90), math.radians(180)),  # 1
    Part.LineSegment(V(-24.2, 28.2, 0), V(24.2, 28.2, 0)),  # 2
    Part.ArcOfCircle(Part.Circle(V(24.2, 24.2, 0), V(0, 0, 1), 4), math.radians(0), math.radians(90)),  # 3
    Part.LineSegment(V(28.2, 24.2, 0), V(28.2, -24.2, 0)),  # 4
    Part.ArcOfCircle(Part.Circle(V(24.2, -24.2, 0), V(0, 0, 1), 4), math.radians(-90), math.radians(0)),  # 5
    Part.LineSegment(V(24.2, -28.2, 0), V(-24.2, -28.2, 0)),  # 6
    Part.ArcOfCircle(Part.Circle(V(-24.2, -24.2, 0), V(0, 0, 1), 4), math.radians(180), math.radians(270)),  # 7
    Part.Circle(V(-23.57, -23.57, 0), V(0, 0, 1), 2.3),  # 8
    Part.Circle(V(-23.57, 23.57, 0), V(0, 0, 1), 2.3),  # 9
    Part.Circle(V(23.57, -23.57, 0), V(0, 0, 1), 2.3),  # 10
    Part.Circle(V(23.57, 23.57, 0), V(0, 0, 1), 2.3),  # 11
], False)
sketch9.addConstraint([
    Sketcher.Constraint("Tangent", 0, 2, 1, 2),
    Sketcher.Constraint("Tangent", 1, 1, 2, 1),
    Sketcher.Constraint("Tangent", 2, 2, 3, 2),
    Sketcher.Constraint("Tangent", 3, 1, 4, 1),
    Sketcher.Constraint("Tangent", 4, 2, 5, 2),
    Sketcher.Constraint("Tangent", 5, 1, 6, 1),
    Sketcher.Constraint("Tangent", 6, 2, 7, 2),
    Sketcher.Constraint("Tangent", 7, 1, 0, 1),
    Sketcher.Constraint("Vertical", 0),
    Sketcher.Constraint("Horizontal", 2),
    Sketcher.Constraint("Vertical", 4),
    Sketcher.Constraint("Horizontal", 6),
    Sketcher.Constraint("Equal", 1, 3),
    Sketcher.Constraint("Equal", 3, 5),
    Sketcher.Constraint("Equal", 5, 7),
    Sketcher.Constraint("Equal", 8, 9),
    Sketcher.Constraint("Equal", 9, 10),
    Sketcher.Constraint("Equal", 10, 11),
    Sketcher.Constraint("Symmetric", 1, 3, 5, 3, -1, 1),
    Sketcher.Constraint("Symmetric", 9, 3, 10, 3, -1, 1),
    Sketcher.Constraint("Symmetric", 8, 3, 11, 3, -1, 1),
    Sketcher.Constraint("Symmetric", 8, 3, 10, 3, -2),
    Sketcher.Constraint("Equal", 6, 0),
    Sketcher.Constraint("Radius", 1, 4.0),
    Sketcher.Constraint("Diameter", 8, 4.6),
    Sketcher.Constraint("DistanceX", 2, 1, 2, 2, 48.4),
    Sketcher.Constraint("DistanceX", 8, 3, -1, 1, 23.57),
    Sketcher.Constraint("DistanceY", 8, 3, -1, 1, 23.57),
])
pad6 = body2.newObject("PartDesign::Pad", "Pad005")
pad6.Profile = sketch9
pad6.Length = 8
pad6.Reversed = True

# Sketch on YZ plane
sketch10 = body2.newObject("Sketcher::SketchObject", "Sketch009")
sketch10.AttachmentSupport = (doc.getObject("YZ_Plane001"), [""])
sketch10.MapMode = "FlatFace"
sketch10.AttachmentOffset = App.Placement(V(0, 0, -33.5), App.Rotation())
sketch10.addGeometry(Part.Circle(V(0, 0, 0), V(0, 0, 1), 28.2), False)
sketch10.addConstraint([
    Sketcher.Constraint("Coincident", 0, 3, -1, 1),
    Sketcher.Constraint("Diameter", 0, 56.4),
])
pad7 = body2.newObject("PartDesign::Pad", "Pad006")
pad7.Profile = sketch10
pad7.Length = 41.5
pad7.Reversed = True

# Sketch on YZ plane
sketch11 = body2.newObject("Sketcher::SketchObject", "Sketch010")
sketch11.AttachmentSupport = (doc.getObject("YZ_Plane001"), [""])
sketch11.MapMode = "FlatFace"
sketch11.AttachmentOffset = App.Placement(V(0, 0, -75), App.Rotation())
sketch11.addGeometry(Part.Circle(V(0, 0, 0), V(0, 0, 1), 16), False)
sketch11.addConstraint([
    Sketcher.Constraint("Coincident", 0, 3, -1, 1),
    Sketcher.Constraint("Diameter", 0, 32.0),
])
pad8 = body2.newObject("PartDesign::Pad", "Pad007")
pad8.Profile = sketch11
pad8.Length = 2
pad8.Reversed = True

# Sketch on YZ plane
sketch12 = body2.newObject("Sketcher::SketchObject", "Sketch011")
sketch12.AttachmentSupport = (doc.getObject("YZ_Plane001"), [""])
sketch12.MapMode = "FlatFace"
sketch12.AttachmentOffset = App.Placement(V(0, 0, -77), App.Rotation())
sketch12.addGeometry(Part.Circle(V(0, 0, 0), V(0, 0, 1), 6), False)
sketch12.addConstraint([
    Sketcher.Constraint("Coincident", 0, 3, -1, 1),
    Sketcher.Constraint("Diameter", 0, 12.0),
])
pad9 = body2.newObject("PartDesign::Pad", "Pad008")
pad9.Profile = sketch12
pad9.Length = 28
pad9.Reversed = True

# Sketch on XZ plane
sketch13 = body2.newObject("Sketcher::SketchObject", "Sketch012")
sketch13.AttachmentSupport = (doc.getObject("XZ_Plane001"), [""])
sketch13.MapMode = "FlatFace"
sketch13.AttachmentOffset = App.Placement(V(0, 0, -3.5), App.Rotation())
sketch13.addGeometry([
    Part.LineSegment(V(-87, -2, 0), V(-105, -2, 0)),
    Part.ArcOfCircle(Part.Circle(V(-105, 0, 0), V(0, 0, 1), 2), math.radians(90), math.radians(270)),
    Part.LineSegment(V(-105, 2, 0), V(-87, 2, 0)),
    Part.ArcOfCircle(Part.Circle(V(-87, 0, 0), V(0, 0, 1), 2), math.radians(-90), math.radians(90)),
], False)
sketch13.addConstraint([
    Sketcher.Constraint("Tangent", 0, 2, 1, 2),
    Sketcher.Constraint("Tangent", 1, 1, 2, 1),
    Sketcher.Constraint("Tangent", 2, 2, 3, 2),
    Sketcher.Constraint("Tangent", 3, 1, 0, 1),
    Sketcher.Constraint("Horizontal", 0),
    Sketcher.Constraint("Horizontal", 2),
    Sketcher.Constraint("PointOnObject", 1, 3, -1),
    Sketcher.Constraint("Radius", 1, 2.0),
    Sketcher.Constraint("DistanceX", 0, 2, 0, 1, 18.0),
    Sketcher.Constraint("DistanceX", 1, 3, -1, 1, 105.0),
])
pocket3 = body2.newObject("PartDesign::Pocket", "Pocket002")
pocket3.Profile = sketch13
pocket3.Length = 28

# Sketch on XZ plane
sketch14 = body2.newObject("Sketcher::SketchObject", "Sketch013")
sketch14.AttachmentSupport = (doc.getObject("XZ_Plane001"), [""])
sketch14.MapMode = "FlatFace"
sketch14.AttachmentOffset = App.Placement(V(0, 0, -15.909903), App.Rotation())
sketch14.addGeometry([
    Part.LineSegment(V(-61.338193, -15.909903, 0), V(-75, -15.909903, 0)),
    Part.LineSegment(V(-75, -15.909903, 0), V(-75, -13.809903, 0)),
    Part.LineSegment(V(-75, -13.809903, 0), V(-62.6, -13.809903, 0)),
    Part.LineSegment(V(-62.6, -13.809903, 0), V(-61.338193, -15.909903, 0)),
], False)
sketch14.addGeometry(Part.LineSegment(V(-75, -15.909903, 0), V(-61.338193, -15.909903, 0)), True)  # axis
sketch14.addConstraint([
    Sketcher.Constraint("Coincident", 0, 2, 1, 1),
    Sketcher.Constraint("Coincident", 1, 2, 2, 1),
    Sketcher.Constraint("Coincident", 2, 2, 3, 1),
    Sketcher.Constraint("Coincident", 3, 2, 0, 1),
    Sketcher.Constraint("Horizontal", 0),
    Sketcher.Constraint("Vertical", 1),
    Sketcher.Constraint("Horizontal", 2),
    Sketcher.Constraint("Horizontal", 4),
    Sketcher.Constraint("Coincident", 4, 1, 0, 2),
    Sketcher.Constraint("Equal", 0, 4),
    Sketcher.Constraint("Angle", 3, Q("-59 deg")),
    Sketcher.Constraint("DistanceX", 2, 1, 2, 2, 12.4),
    Sketcher.Constraint("DistanceY", 1, 1, 1, 2, 2.1),
    Sketcher.Constraint("DistanceX", 0, 2, -1, 1, 75.0),
    Sketcher.Constraint("DistanceY", 0, 2, -1, 1, 15.909903),
])
groove = body2.newObject("PartDesign::Groove", "Groove")
groove.Profile = sketch14
groove.ReferenceAxis = (sketch14, ["Axis0"])
groove.Angle = 360
doc.recompute()

linearpattern = body2.newObject("PartDesign::LinearPattern", "LinearPattern")
linearpattern.Originals = [groove]
linearpattern.Direction = (doc.getObject("Z_Axis001"), [""])
linearpattern.Mode = "offset"
linearpattern.Offset = 31.819805
linearpattern.Occurrences = 2
body2.Tip = linearpattern
doc.recompute()

linearpattern2 = body2.newObject("PartDesign::LinearPattern", "LinearPattern001")
linearpattern2.Originals = [groove]
linearpattern2.Direction = (doc.getObject("Y_Axis001"), [""])
linearpattern2.Mode = "offset"
linearpattern2.Offset = 31.819805
linearpattern2.Occurrences = 2
linearpattern2.Reversed = True
body2.Tip = linearpattern2
doc.recompute()

datumline = body2.newObject("PartDesign::Line", "DatumLine")
datumline.Placement = App.Placement(V(0, 0, 0), App.Rotation(V(0, 0, 1), V(0, -0.707106781, 0.707106781)))
linearpattern3 = body2.newObject("PartDesign::LinearPattern", "LinearPattern002")
linearpattern3.Originals = [groove]
linearpattern3.Direction = (datumline, [""])
linearpattern3.Mode = "offset"
linearpattern3.Offset = 45
linearpattern3.Occurrences = 2
body2.Tip = linearpattern3

doc.recompute()
